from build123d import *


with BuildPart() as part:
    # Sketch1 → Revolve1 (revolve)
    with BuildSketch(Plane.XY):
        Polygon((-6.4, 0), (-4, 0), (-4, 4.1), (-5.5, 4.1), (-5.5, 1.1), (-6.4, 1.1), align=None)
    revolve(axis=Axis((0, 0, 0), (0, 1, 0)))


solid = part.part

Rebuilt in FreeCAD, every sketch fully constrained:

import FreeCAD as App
import Part
import Sketcher
from FreeCAD import Vector
Q = App.Units.Quantity

doc = App.newDocument("Part")
body = doc.addObject("PartDesign::Body", "Body")

# Sketch on XY plane
sketch1 = body.newObject("Sketcher::SketchObject", "Sketch")
sketch1.AttachmentSupport = (doc.getObject("XY_Plane"), [""])
sketch1.MapMode = "FlatFace"
sketch1.addGeometry([
    Part.LineSegment(Vector(-6.4, 0, 0), Vector(-4, 0, 0)),  # 0
    Part.LineSegment(Vector(-4, 0, 0), Vector(-4, 4.1, 0)),  # 1
    Part.LineSegment(Vector(-4, 4.1, 0), Vector(-5.5, 4.1, 0)),  # 2
    Part.LineSegment(Vector(-5.5, 4.1, 0), Vector(-5.5, 1.1, 0)),  # 3
    Part.LineSegment(Vector(-5.5, 1.1, 0), Vector(-6.4, 1.1, 0)),  # 4
    Part.LineSegment(Vector(-6.4, 1.1, 0), Vector(-6.4, 0, 0)),  # 5
], False)
sketch1.addConstraint([
    Sketcher.Constraint("Coincident", 0, 2, 1, 1),
    Sketcher.Constraint("Coincident", 1, 2, 2, 1),
    Sketcher.Constraint("Coincident", 2, 2, 3, 1),
    Sketcher.Constraint("Coincident", 3, 2, 4, 1),
    Sketcher.Constraint("Coincident", 4, 2, 5, 1),
    Sketcher.Constraint("Coincident", 5, 2, 0, 1),
    Sketcher.Constraint("Horizontal", 0),
    Sketcher.Constraint("Vertical", 1),
    Sketcher.Constraint("Horizontal", 2),
    Sketcher.Constraint("Vertical", 3),
    Sketcher.Constraint("Horizontal", 4),
    Sketcher.Constraint("Vertical", 5),
    Sketcher.Constraint("PointOnObject", 0, 2, -1),
    Sketcher.Constraint("DistanceY", 3, 2, 3, 1, Q("3 mm")),
    Sketcher.Constraint("DistanceX", 0, 1, 0, 2, Q("2.4 mm")),
    Sketcher.Constraint("DistanceX", 2, 2, 2, 1, Q("1.5 mm")),
    Sketcher.Constraint("DistanceY", 1, 1, 1, 2, Q("4.1 mm")),
    Sketcher.Constraint("DistanceX", 0, 2, -1, 1, Q("4 mm")),
])
revolution = body.newObject("PartDesign::Revolution", "Revolution")
revolution.Profile = sketch1
revolution.ReferenceAxis = (sketch1, ["V_Axis"])
revolution.Angle = 360

doc.recompute()
